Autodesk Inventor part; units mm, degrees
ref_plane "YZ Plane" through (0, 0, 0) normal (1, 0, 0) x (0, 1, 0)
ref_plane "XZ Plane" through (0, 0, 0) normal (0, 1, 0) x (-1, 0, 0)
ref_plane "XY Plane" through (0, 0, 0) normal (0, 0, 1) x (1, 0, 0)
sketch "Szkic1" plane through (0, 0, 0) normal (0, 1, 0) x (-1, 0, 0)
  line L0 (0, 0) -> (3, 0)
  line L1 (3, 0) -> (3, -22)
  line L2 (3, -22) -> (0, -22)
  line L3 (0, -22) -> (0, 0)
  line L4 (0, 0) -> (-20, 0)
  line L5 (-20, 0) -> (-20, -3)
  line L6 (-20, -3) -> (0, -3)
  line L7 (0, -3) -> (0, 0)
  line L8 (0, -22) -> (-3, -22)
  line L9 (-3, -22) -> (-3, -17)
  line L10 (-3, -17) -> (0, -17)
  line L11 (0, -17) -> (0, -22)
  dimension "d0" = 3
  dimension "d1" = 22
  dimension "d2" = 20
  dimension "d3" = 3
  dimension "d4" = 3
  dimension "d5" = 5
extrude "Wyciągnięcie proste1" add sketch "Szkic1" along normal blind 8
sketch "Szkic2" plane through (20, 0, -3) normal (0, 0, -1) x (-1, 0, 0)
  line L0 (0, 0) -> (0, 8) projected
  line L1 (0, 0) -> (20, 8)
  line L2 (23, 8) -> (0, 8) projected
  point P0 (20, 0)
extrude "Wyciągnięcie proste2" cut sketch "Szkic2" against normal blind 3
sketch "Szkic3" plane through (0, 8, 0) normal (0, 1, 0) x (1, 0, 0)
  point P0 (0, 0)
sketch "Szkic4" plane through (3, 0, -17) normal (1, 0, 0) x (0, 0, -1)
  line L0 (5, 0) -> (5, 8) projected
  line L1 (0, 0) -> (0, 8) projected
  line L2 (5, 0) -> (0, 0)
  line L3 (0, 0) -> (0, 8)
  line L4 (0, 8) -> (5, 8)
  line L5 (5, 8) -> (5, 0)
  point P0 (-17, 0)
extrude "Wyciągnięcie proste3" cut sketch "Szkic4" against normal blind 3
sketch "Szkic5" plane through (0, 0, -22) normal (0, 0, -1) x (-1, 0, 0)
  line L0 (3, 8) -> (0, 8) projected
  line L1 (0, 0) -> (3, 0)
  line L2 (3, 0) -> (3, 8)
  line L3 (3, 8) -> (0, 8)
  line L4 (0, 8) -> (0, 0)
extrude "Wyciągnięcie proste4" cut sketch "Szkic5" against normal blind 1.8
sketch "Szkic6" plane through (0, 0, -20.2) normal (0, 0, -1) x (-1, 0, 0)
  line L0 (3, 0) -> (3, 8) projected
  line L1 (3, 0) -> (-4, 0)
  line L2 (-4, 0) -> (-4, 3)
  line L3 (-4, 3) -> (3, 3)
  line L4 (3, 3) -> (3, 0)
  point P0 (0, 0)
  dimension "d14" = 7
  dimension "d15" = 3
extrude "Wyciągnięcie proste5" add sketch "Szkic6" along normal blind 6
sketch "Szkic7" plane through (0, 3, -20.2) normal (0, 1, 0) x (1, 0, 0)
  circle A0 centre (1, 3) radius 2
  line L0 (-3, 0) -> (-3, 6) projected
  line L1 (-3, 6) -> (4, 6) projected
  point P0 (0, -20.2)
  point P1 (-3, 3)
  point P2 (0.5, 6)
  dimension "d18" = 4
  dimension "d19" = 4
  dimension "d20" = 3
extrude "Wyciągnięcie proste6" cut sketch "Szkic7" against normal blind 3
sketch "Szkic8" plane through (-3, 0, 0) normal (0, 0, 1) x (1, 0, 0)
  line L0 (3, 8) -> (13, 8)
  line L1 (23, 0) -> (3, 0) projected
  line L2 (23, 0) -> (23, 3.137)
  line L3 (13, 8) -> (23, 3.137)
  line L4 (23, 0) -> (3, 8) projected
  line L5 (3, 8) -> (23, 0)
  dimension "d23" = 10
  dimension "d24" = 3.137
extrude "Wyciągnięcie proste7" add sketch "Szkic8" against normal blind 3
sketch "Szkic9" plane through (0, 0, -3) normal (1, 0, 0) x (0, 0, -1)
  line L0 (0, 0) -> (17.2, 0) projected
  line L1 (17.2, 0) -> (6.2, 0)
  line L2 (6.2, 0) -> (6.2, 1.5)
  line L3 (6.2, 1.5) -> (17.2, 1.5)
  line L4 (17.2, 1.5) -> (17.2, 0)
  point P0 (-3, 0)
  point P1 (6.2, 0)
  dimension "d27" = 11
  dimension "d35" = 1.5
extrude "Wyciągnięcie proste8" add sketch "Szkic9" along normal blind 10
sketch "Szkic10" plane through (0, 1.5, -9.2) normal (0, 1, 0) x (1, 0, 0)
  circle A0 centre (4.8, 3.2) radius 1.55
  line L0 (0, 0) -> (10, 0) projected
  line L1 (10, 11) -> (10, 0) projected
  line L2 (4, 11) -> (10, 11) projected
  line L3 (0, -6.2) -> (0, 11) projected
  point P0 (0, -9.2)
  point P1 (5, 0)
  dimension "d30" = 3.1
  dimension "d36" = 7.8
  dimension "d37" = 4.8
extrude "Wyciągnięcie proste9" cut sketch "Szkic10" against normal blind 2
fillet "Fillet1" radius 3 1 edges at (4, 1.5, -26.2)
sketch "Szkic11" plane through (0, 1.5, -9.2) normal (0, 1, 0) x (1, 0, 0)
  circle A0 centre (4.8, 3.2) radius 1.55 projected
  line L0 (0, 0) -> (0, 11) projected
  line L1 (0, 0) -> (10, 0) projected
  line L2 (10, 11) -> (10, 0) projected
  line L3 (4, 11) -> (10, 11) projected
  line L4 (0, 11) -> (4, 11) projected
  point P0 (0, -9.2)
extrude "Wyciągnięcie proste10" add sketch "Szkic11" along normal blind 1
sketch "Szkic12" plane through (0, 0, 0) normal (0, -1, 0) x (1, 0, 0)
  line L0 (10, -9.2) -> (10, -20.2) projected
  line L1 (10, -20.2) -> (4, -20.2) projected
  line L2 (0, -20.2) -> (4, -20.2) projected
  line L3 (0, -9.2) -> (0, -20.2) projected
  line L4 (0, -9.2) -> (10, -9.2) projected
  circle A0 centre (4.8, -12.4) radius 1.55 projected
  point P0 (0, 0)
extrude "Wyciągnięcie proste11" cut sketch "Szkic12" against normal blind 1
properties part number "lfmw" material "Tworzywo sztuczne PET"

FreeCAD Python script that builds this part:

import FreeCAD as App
import Part
import Sketcher


def edges_at(feature, points):
    """Names of the edges that pass closest to the given points."""
    edges = feature.Shape.Edges
    near = lambda p: min(range(len(edges)), key=lambda i: edges[i].distToShape(Part.Vertex(*p))[0])
    return sorted({f"Edge{near(p) + 1}" for p in points})


def add_polygon(sketch, points):
    """Adds a closed chain of lines whose ends are joined by coincident constraints."""
    first, n = sketch.GeometryCount, len(points)
    for a, b in zip(points, points[1:] + points[:1]):
        sketch.addGeometry(Part.LineSegment(App.Vector(*a, 0), App.Vector(*b, 0)), False)
    for i in range(n):
        sketch.addConstraint(Sketcher.Constraint("Coincident", first + i, 2, first + (i + 1) % n, 1))

doc = App.newDocument("Part")
body = doc.addObject("PartDesign::Body", "Body")

# Sketch on XZ plane
sketch1 = body.newObject("Sketcher::SketchObject", "Sketch")
sketch1.AttachmentSupport = (doc.getObject("XZ_Plane"), [""])
sketch1.MapMode = "FlatFace"
add_polygon(sketch1, [(-3, 0), (20, 0), (20, -3), (0, -3), (0, -17), (3, -17), (3, -22), (-3, -22)])  # lines 0-7
sketch1.addConstraint([
    Sketcher.Constraint("Horizontal", 0),
    Sketcher.Constraint("Vertical", 1),
    Sketcher.Constraint("Horizontal", 2),
    Sketcher.Constraint("Vertical", 3),
    Sketcher.Constraint("Horizontal", 4),
    Sketcher.Constraint("Vertical", 5),
    Sketcher.Constraint("Horizontal", 6),
    Sketcher.Constraint("Vertical", 7),
    Sketcher.Constraint("PointOnObject", 0, 2, -1),
    Sketcher.Constraint("PointOnObject", 2, 2, -2),
    Sketcher.Constraint("Equal", 4, 1),
    Sketcher.Constraint("DistanceX", 2, 2, 2, 1, 20.0),
    Sketcher.Constraint("DistanceX", 4, 1, 4, 2, 3.0),
    Sketcher.Constraint("DistanceY", 5, 2, 5, 1, 5.0),
    Sketcher.Constraint("DistanceY", 7, 1, 7, 2, 22.0),
    Sketcher.Constraint("DistanceX", 6, 2, -1, 1, 3.0),
])
pad1 = body.newObject("PartDesign::Pad", "Pad")
pad1.Profile = sketch1
pad1.Length = 8
pad1.Reversed = True

# Sketch on XY plane
sketch2 = body.newObject("Sketcher::SketchObject", "Sketch001")
sketch2.AttachmentSupport = (doc.getObject("XY_Plane"), [""])
sketch2.MapMode = "FlatFace"
sketch2.AttachmentOffset = App.Placement(App.Vector(0, 0, -3), App.Rotation())
add_polygon(sketch2, [(20, 8), (20, 0), (0, 8)])  # lines 0-2
sketch2.addConstraint([
    Sketcher.Constraint("Vertical", 0),
    Sketcher.Constraint("Horizontal", 2),
    Sketcher.Constraint("PointOnObject", 0, 2, -1),
    Sketcher.Constraint("PointOnObject", 1, 2, -2),
    Sketcher.Constraint("DistanceX", 2, 1, 2, 2, 20.0),
    Sketcher.Constraint("DistanceY", 0, 2, 0, 1, 8.0),
])
pocket1 = body.newObject("PartDesign::Pocket", "Pocket")
pocket1.Profile = sketch2
pocket1.Length = 3
pocket1.Reversed = True

# Sketch on YZ plane
sketch3 = body.newObject("Sketcher::SketchObject", "Sketch002")
sketch3.AttachmentSupport = (doc.getObject("YZ_Plane"), [""])
sketch3.MapMode = "FlatFace"
sketch3.AttachmentOffset = App.Placement(App.Vector(0, 0, 3), App.Rotation())
add_polygon(sketch3, [(0, -17), (0, -22), (8, -22), (8, -17)])  # lines 0-3
sketch3.addConstraint([
    Sketcher.Constraint("Vertical", 0),
    Sketcher.Constraint("Horizontal", 1),
    Sketcher.Constraint("Vertical", 2),
    Sketcher.Constraint("Horizontal", 3),
    Sketcher.Constraint("PointOnObject", 0, 2, -2),
    Sketcher.Constraint("DistanceX", 1, 1, 1, 2, 8.0),
    Sketcher.Constraint("DistanceY", 0, 2, 0, 1, 5.0),
    Sketcher.Constraint("DistanceY", 0, 2, -1, 1, 22.0),
])
pocket2 = body.newObject("PartDesign::Pocket", "Pocket001")
pocket2.Profile = sketch3
pocket2.Length = 3

# Sketch on XY plane
sketch4 = body.newObject("Sketcher::SketchObject", "Sketch003")
sketch4.AttachmentSupport = (doc.getObject("XY_Plane"), [""])
sketch4.MapMode = "FlatFace"
sketch4.AttachmentOffset = App.Placement(App.Vector(0, 0, -22), App.Rotation())
add_polygon(sketch4, [(-3, 0), (-3, 8), (0, 8), (0, 0)])  # lines 0-3
sketch4.addConstraint([
    Sketcher.Constraint("Vertical", 0),
    Sketcher.Constraint("Horizontal", 1),
    Sketcher.Constraint("Vertical", 2),
    Sketcher.Constraint("Horizontal", 3),
    Sketcher.Constraint("Coincident", 2, 2, -1, 1),
    Sketcher.Constraint("DistanceX", 1, 1, 1, 2, 3.0),
    Sketcher.Constraint("DistanceY", 0, 1, 0, 2, 8.0),
])
pocket3 = body.newObject("PartDesign::Pocket", "Pocket002")
pocket3.Profile = sketch4
pocket3.Length = 1.8
pocket3.Reversed = True

# Sketch on XY plane
sketch5 = body.newObject("Sketcher::SketchObject", "Sketch004")
sketch5.AttachmentSupport = (doc.getObject("XY_Plane"), [""])
sketch5.MapMode = "FlatFace"
sketch5.AttachmentOffset = App.Placement(App.Vector(0, 0, -20.2), App.Rotation())
add_polygon(sketch5, [(4, 0), (-3, 0), (-3, 3), (4, 3)])  # lines 0-3
sketch5.addConstraint([
    Sketcher.Constraint("Horizontal", 0),
    Sketcher.Constraint("Vertical", 1),
    Sketcher.Constraint("Horizontal", 2),
    Sketcher.Constraint("Vertical", 3),
    Sketcher.Constraint("PointOnObject", 0, 2, -1),
    Sketcher.Constraint("DistanceX", 0, 2, 0, 1, 7.0),
    Sketcher.Constraint("DistanceY", 1, 1, 1, 2, 3.0),
    Sketcher.Constraint("DistanceX", 0, 2, -1, 1, 3.0),
])
pad2 = body.newObject("PartDesign::Pad", "Pad001")
pad2.Profile = sketch5
pad2.Length = 6
pad2.Reversed = True

# Sketch on XZ plane
sketch6 = body.newObject("Sketcher::SketchObject", "Sketch005")
sketch6.AttachmentSupport = (doc.getObject("XZ_Plane"), [""])
sketch6.MapMode = "FlatFace"
sketch6.AttachmentOffset = App.Placement(App.Vector(0, 0, -3), App.Rotation())
sketch6.addGeometry(Part.Circle(App.Vector(1, -23.2, 0), App.Vector(0, 0, 1), 2), False)
sketch6.addConstraint([
    Sketcher.Constraint("Diameter", 0, 4.0),
    Sketcher.Constraint("DistanceX", -1, 1, 0, 3, 1.0),
    Sketcher.Constraint("DistanceY", 0, 3, -1, 1, 23.2),
])
pocket4 = body.newObject("PartDesign::Pocket", "Pocket003")
pocket4.Profile = sketch6
pocket4.Length = 3
pocket4.Reversed = True

# Sketch on XY plane
sketch7 = body.newObject("Sketcher::SketchObject", "Sketch006")
sketch7.AttachmentSupport = (doc.getObject("XY_Plane"), [""])
sketch7.MapMode = "FlatFace"
add_polygon(sketch7, [(10, 8), (0, 8), (20, 0), (20, 3.1)])  # lines 0-3
sketch7.addConstraint([
    Sketcher.Constraint("Horizontal", 0),
    Sketcher.Constraint("Vertical", 2),
    Sketcher.Constraint("PointOnObject", 0, 2, -2),
    Sketcher.Constraint("PointOnObject", 1, 2, -1),
    Sketcher.Constraint("DistanceX", 0, 2, 0, 1, 10.0),
    Sketcher.Constraint("DistanceX", 3, 2, 2, 2, 10.0),
    Sketcher.Constraint("DistanceY", 2, 1, 2, 2, 3.137),
    Sketcher.Constraint("DistanceY", -1, 1, 0, 2, 8.0),
])
pad3 = body.newObject("PartDesign::Pad", "Pad002")
pad3.Profile = sketch7
pad3.Length = 3
pad3.Reversed = True

# Sketch on YZ plane
sketch8 = body.newObject("Sketcher::SketchObject", "Sketch007")
sketch8.AttachmentSupport = (doc.getObject("YZ_Plane"), [""])
sketch8.MapMode = "FlatFace"
add_polygon(sketch8, [(1.5, -9.2), (0, -9.2), (0, -20.2), (1.5, -20.2)])  # lines 0-3
sketch8.addConstraint([
    Sketcher.Constraint("Horizontal", 0),
    Sketcher.Constraint("Vertical", 1),
    Sketcher.Constraint("Horizontal", 2),
    Sketcher.Constraint("Vertical", 3),
    Sketcher.Constraint("PointOnObject", 0, 2, -2),
    Sketcher.Constraint("DistanceY", 1, 2, 1, 1, 11.0),
    Sketcher.Constraint("DistanceX", 0, 2, 0, 1, 1.5),
    Sketcher.Constraint("DistanceY", 0, 2, -1, 1, 9.2),
])
pad4 = body.newObject("PartDesign::Pad", "Pad003")
pad4.Profile = sketch8
pad4.Length = 10

# Sketch on XZ plane
sketch9 = body.newObject("Sketcher::SketchObject", "Sketch008")
sketch9.AttachmentSupport = (doc.getObject("XZ_Plane"), [""])
sketch9.MapMode = "FlatFace"
sketch9.AttachmentOffset = App.Placement(App.Vector(0, 0, -1.5), App.Rotation())
sketch9.addGeometry(Part.Circle(App.Vector(4.8, -12.4, 0), App.Vector(0, 0, 1), 1.6), False)
sketch9.addConstraint([
    Sketcher.Constraint("Diameter", 0, 3.1),
    Sketcher.Constraint("DistanceX", -1, 1, 0, 3, 4.8),
    Sketcher.Constraint("DistanceY", 0, 3, -1, 1, 12.4),
])
pocket5 = body.newObject("PartDesign::Pocket", "Pocket004")
pocket5.Profile = sketch9
pocket5.Length = 2
pocket5.Reversed = True
doc.recompute()

fillet = body.newObject("PartDesign::Fillet", "Fillet")
fillet.Base = (pocket5, edges_at(pocket5, [(4, 1.5, -26.2)]))
fillet.Radius = 3

# Sketch on XZ plane
sketch10 = body.newObject("Sketcher::SketchObject", "Sketch009")
sketch10.AttachmentSupport = (doc.getObject("XZ_Plane"), [""])
sketch10.MapMode = "FlatFace"
sketch10.AttachmentOffset = App.Placement(App.Vector(0, 0, -1.5), App.Rotation())
add_polygon(sketch10, [(0, -20.2), (0, -9.2), (10, -9.2), (10, -20.2)])  # lines 0-3
sketch10.addGeometry(Part.Circle(App.Vector(4.8, -12.4, 0), App.Vector(0, 0, 1), 1.6), False)  # 4
sketch10.addConstraint([
    Sketcher.Constraint("Vertical", 0),
    Sketcher.Constraint("Horizontal", 1),
    Sketcher.Constraint("Vertical", 2),
    Sketcher.Constraint("Horizontal", 3),
    Sketcher.Constraint("PointOnObject", 0, 2, -2),
    Sketcher.Constraint("Diameter", 4, 3.1),
    Sketcher.Constraint("DistanceX", 1, 1, 1, 2, 10.0),
    Sketcher.Constraint("DistanceY", 0, 1, 0, 2, 11.0),
    Sketcher.Constraint("DistanceX", -1, 1, 4, 3, 4.8),
    Sketcher.Constraint("DistanceY", 4, 3, -1, 1, 12.4),
    Sketcher.Constraint("DistanceY", 0, 2, -1, 1, 9.2),
])
pad5 = body.newObject("PartDesign::Pad", "Pad004")
pad5.Profile = sketch10
pad5.Length = 1
pad5.Reversed = True

# Sketch on XZ plane
sketch11 = body.newObject("Sketcher::SketchObject", "Sketch010")
sketch11.AttachmentSupport = (doc.getObject("XZ_Plane"), [""])
sketch11.MapMode = "FlatFace"
add_polygon(sketch11, [(10, -20.2), (10, -9.2), (0, -9.2), (0, -20.2)])  # lines 0-3
sketch11.addGeometry(Part.Circle(App.Vector(4.8, -12.4, 0), App.Vector(0, 0, 1), 1.6), False)  # 4
sketch11.addConstraint([
    Sketcher.Constraint("Vertical", 0),
    Sketcher.Constraint("Horizontal", 1),
    Sketcher.Constraint("Vertical", 2),
    Sketcher.Constraint("Horizontal", 3),
    Sketcher.Constraint("PointOnObject", 1, 2, -2),
    Sketcher.Constraint("Diameter", 4, 3.1),
    Sketcher.Constraint("DistanceX", 1, 2, 1, 1, 10.0),
    Sketcher.Constraint("DistanceY", 0, 1, 0, 2, 11.0),
    Sketcher.Constraint("DistanceX", -1, 1, 4, 3, 4.8),
    Sketcher.Constraint("DistanceY", 4, 3, -1, 1, 12.4),
    Sketcher.Constraint("DistanceY", 0, 2, -1, 1, 9.2),
])
pocket6 = body.newObject("PartDesign::Pocket", "Pocket005")
pocket6.Profile = sketch11
pocket6.Length = 1

doc.recompute()
